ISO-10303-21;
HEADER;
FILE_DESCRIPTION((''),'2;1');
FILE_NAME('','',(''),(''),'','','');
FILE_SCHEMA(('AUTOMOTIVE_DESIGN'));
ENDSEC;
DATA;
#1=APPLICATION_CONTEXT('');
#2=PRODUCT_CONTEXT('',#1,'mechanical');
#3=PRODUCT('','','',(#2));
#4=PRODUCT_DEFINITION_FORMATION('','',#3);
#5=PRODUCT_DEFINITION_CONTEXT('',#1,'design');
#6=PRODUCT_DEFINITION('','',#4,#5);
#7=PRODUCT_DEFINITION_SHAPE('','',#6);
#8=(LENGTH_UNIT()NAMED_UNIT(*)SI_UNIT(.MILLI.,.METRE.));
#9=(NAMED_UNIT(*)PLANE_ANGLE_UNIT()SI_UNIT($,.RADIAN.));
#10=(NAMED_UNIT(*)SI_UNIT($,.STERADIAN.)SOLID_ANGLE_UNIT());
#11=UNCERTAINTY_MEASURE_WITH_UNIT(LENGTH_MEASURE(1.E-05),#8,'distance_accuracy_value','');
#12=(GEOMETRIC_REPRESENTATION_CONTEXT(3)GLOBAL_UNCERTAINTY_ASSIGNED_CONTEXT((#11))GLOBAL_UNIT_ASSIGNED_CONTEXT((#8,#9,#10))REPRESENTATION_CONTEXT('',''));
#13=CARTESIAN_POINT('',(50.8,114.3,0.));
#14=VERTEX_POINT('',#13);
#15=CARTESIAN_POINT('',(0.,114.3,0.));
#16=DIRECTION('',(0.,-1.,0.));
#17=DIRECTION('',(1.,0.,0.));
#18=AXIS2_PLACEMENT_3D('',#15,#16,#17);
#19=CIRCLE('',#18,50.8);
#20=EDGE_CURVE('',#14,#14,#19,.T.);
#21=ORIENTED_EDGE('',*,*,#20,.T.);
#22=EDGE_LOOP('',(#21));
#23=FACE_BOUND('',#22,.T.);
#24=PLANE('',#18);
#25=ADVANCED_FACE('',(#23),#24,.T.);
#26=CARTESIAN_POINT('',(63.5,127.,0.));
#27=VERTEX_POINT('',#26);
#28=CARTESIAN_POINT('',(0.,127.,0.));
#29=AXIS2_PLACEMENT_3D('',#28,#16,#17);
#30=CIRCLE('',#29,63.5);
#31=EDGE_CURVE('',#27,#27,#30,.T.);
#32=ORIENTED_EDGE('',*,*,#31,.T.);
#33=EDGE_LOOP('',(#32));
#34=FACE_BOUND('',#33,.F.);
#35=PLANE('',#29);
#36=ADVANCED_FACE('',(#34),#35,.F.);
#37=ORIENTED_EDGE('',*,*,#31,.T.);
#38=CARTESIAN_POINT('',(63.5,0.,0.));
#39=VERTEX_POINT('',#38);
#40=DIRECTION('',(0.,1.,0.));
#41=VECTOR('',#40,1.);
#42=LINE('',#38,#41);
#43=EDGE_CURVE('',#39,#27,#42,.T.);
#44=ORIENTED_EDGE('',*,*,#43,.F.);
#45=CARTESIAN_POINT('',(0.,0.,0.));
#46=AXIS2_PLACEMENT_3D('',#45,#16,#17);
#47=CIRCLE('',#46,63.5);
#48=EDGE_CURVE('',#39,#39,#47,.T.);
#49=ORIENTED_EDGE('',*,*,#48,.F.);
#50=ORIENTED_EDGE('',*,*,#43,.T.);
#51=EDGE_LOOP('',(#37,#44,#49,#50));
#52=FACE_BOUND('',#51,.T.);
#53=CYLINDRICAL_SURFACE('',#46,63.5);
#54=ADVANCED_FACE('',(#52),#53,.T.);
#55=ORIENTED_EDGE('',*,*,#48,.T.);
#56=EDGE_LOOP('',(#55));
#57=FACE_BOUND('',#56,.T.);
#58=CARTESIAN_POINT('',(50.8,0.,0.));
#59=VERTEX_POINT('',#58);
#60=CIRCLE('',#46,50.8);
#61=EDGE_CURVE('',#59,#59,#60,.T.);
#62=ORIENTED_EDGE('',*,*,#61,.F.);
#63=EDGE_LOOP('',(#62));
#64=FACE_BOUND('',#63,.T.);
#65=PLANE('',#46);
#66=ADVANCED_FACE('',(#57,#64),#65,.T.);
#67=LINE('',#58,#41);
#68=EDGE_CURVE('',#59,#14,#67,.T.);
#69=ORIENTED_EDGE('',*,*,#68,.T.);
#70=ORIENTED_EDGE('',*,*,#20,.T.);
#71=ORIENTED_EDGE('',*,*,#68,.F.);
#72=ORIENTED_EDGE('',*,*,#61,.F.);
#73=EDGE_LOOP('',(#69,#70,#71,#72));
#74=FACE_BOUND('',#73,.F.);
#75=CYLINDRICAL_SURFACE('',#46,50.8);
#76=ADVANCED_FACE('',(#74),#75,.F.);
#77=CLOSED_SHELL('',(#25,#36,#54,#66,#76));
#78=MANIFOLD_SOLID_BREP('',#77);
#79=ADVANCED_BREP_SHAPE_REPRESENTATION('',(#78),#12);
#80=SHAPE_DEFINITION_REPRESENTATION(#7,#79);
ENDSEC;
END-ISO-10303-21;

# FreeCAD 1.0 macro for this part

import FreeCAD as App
import Part
import Sketcher

V = App.Vector
Q = App.Units.Quantity

doc = App.newDocument("Part")
body = doc.addObject("PartDesign::Body", "Body")

# Sketch on XZ plane
sketch1 = body.newObject("Sketcher::SketchObject", "Sketch")
sketch1.AttachmentSupport = (doc.getObject("XZ_Plane"), [""])
sketch1.MapMode = "FlatFace"
sketch1.addGeometry(Part.Circle(V(0, 0, 0), V(0, 0, 1), 64), False)
sketch1.addConstraint([
    Sketcher.Constraint("Coincident", 0, 3, -1, 1),
    Sketcher.Constraint("Diameter", 0, Q("5 in")),
])
pad1 = body.newObject("PartDesign::Pad", "Pad")
pad1.Profile = sketch1
pad1.Length = Q("5 in")
pad1.Reversed = True

# Sketch on XZ plane
sketch2 = body.newObject("Sketcher::SketchObject", "Sketch001")
sketch2.AttachmentSupport = (doc.getObject("XZ_Plane"), [""])
sketch2.MapMode = "FlatFace"
sketch2.addGeometry(Part.Circle(V(0, 0, 0), V(0, 0, 1), 51), False)
sketch2.addConstraint([
    Sketcher.Constraint("Coincident", 0, 3, -1, 1),
    Sketcher.Constraint("Diameter", 0, Q("4 in")),
])
pocket1 = body.newObject("PartDesign::Pocket", "Pocket")
pocket1.Profile = sketch2
pocket1.Length = Q("4.5 in")

doc.recompute()
